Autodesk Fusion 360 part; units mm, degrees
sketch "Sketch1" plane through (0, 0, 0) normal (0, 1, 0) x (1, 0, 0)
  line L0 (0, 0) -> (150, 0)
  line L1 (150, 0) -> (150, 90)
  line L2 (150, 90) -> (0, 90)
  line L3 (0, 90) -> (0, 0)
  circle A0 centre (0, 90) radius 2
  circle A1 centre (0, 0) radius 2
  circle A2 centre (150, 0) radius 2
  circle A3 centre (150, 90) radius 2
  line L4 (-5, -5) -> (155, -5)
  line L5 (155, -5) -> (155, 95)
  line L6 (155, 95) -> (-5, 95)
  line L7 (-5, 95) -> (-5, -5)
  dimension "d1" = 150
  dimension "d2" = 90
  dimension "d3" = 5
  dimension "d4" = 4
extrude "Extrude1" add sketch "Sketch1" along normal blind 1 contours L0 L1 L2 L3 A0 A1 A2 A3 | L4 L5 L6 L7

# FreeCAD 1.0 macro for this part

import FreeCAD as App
import Part
import Sketcher

V = App.Vector
Q = App.Units.Quantity

doc = App.newDocument("Part")
body = doc.addObject("PartDesign::Body", "Body")

# Sketch on XZ plane
sketch1 = body.newObject("Sketcher::SketchObject", "Sketch")
sketch1.AttachmentSupport = (doc.getObject("XZ_Plane"), [""])
sketch1.MapMode = "FlatFace"
sketch1.addGeometry(Part.LineSegment(V(-5, -95, 0), V(-5, 5, 0)), False)
sketch1.addGeometry(Part.LineSegment(V(-5, 5, 0), V(155, 5, 0)), False)
sketch1.addGeometry(Part.LineSegment(V(155, 5, 0), V(155, -95, 0)), False)
sketch1.addGeometry(Part.LineSegment(V(155, -95, 0), V(-5, -95, 0)), False)
sketch1.addGeometry(Part.Circle(V(0, 0, 0), V(0, 0, 1), 2), False)
sketch1.addGeometry(Part.Circle(V(0, -90, 0), V(0, 0, 1), 2), False)
sketch1.addGeometry(Part.Circle(V(150, -90, 0), V(0, 0, 1), 2), False)
sketch1.addGeometry(Part.Circle(V(150, 0, 0), V(0, 0, 1), 2), False)
sketch1.addConstraint(Sketcher.Constraint("Coincident", 0, 2, 1, 1))
sketch1.addConstraint(Sketcher.Constraint("Coincident", 1, 2, 2, 1))
sketch1.addConstraint(Sketcher.Constraint("Coincident", 2, 2, 3, 1))
sketch1.addConstraint(Sketcher.Constraint("Coincident", 3, 2, 0, 1))
sketch1.addConstraint(Sketcher.Constraint("Vertical", 0))
sketch1.addConstraint(Sketcher.Constraint("Horizontal", 1))
sketch1.addConstraint(Sketcher.Constraint("Vertical", 2))
sketch1.addConstraint(Sketcher.Constraint("Horizontal", 3))
sketch1.addConstraint(Sketcher.Constraint("Coincident", 4, 3, -1, 1))
sketch1.addConstraint(Sketcher.Constraint("Equal", 4, 5))
sketch1.addConstraint(Sketcher.Constraint("Equal", 5, 6))
sketch1.addConstraint(Sketcher.Constraint("Equal", 6, 7))
sketch1.addConstraint(Sketcher.Constraint("PointOnObject", 5, 3, -2))
sketch1.addConstraint(Sketcher.Constraint("PointOnObject", 7, 3, -1))
sketch1.addConstraint(Sketcher.Constraint("Horizontal", 5, 3, 6, 3))
sketch1.addConstraint(Sketcher.Constraint("Vertical", 6, 3, 7, 3))
sketch1.addConstraint(Sketcher.Constraint("Diameter", 4, Q("4 mm")))
sketch1.addConstraint(Sketcher.Constraint("DistanceY", 5, 3, -1, 1, Q("90 mm")))
sketch1.addConstraint(Sketcher.Constraint("DistanceX", -1, 1, 6, 3, Q("150 mm")))
sketch1.addConstraint(Sketcher.Constraint("DistanceX", 0, 2, -1, 1, Q("5 mm")))
sketch1.addConstraint(Sketcher.Constraint("DistanceY", -1, 1, 0, 2, Q("5 mm")))
sketch1.addConstraint(Sketcher.Constraint("DistanceX", 7, 3, 1, 2, Q("5 mm")))
sketch1.addConstraint(Sketcher.Constraint("DistanceY", 2, 2, 6, 3, Q("5 mm")))
pad1 = body.newObject("PartDesign::Pad", "Pad")
pad1.Profile = sketch1
pad1.Length = 1
pad1.Reversed = True

doc.recompute()
